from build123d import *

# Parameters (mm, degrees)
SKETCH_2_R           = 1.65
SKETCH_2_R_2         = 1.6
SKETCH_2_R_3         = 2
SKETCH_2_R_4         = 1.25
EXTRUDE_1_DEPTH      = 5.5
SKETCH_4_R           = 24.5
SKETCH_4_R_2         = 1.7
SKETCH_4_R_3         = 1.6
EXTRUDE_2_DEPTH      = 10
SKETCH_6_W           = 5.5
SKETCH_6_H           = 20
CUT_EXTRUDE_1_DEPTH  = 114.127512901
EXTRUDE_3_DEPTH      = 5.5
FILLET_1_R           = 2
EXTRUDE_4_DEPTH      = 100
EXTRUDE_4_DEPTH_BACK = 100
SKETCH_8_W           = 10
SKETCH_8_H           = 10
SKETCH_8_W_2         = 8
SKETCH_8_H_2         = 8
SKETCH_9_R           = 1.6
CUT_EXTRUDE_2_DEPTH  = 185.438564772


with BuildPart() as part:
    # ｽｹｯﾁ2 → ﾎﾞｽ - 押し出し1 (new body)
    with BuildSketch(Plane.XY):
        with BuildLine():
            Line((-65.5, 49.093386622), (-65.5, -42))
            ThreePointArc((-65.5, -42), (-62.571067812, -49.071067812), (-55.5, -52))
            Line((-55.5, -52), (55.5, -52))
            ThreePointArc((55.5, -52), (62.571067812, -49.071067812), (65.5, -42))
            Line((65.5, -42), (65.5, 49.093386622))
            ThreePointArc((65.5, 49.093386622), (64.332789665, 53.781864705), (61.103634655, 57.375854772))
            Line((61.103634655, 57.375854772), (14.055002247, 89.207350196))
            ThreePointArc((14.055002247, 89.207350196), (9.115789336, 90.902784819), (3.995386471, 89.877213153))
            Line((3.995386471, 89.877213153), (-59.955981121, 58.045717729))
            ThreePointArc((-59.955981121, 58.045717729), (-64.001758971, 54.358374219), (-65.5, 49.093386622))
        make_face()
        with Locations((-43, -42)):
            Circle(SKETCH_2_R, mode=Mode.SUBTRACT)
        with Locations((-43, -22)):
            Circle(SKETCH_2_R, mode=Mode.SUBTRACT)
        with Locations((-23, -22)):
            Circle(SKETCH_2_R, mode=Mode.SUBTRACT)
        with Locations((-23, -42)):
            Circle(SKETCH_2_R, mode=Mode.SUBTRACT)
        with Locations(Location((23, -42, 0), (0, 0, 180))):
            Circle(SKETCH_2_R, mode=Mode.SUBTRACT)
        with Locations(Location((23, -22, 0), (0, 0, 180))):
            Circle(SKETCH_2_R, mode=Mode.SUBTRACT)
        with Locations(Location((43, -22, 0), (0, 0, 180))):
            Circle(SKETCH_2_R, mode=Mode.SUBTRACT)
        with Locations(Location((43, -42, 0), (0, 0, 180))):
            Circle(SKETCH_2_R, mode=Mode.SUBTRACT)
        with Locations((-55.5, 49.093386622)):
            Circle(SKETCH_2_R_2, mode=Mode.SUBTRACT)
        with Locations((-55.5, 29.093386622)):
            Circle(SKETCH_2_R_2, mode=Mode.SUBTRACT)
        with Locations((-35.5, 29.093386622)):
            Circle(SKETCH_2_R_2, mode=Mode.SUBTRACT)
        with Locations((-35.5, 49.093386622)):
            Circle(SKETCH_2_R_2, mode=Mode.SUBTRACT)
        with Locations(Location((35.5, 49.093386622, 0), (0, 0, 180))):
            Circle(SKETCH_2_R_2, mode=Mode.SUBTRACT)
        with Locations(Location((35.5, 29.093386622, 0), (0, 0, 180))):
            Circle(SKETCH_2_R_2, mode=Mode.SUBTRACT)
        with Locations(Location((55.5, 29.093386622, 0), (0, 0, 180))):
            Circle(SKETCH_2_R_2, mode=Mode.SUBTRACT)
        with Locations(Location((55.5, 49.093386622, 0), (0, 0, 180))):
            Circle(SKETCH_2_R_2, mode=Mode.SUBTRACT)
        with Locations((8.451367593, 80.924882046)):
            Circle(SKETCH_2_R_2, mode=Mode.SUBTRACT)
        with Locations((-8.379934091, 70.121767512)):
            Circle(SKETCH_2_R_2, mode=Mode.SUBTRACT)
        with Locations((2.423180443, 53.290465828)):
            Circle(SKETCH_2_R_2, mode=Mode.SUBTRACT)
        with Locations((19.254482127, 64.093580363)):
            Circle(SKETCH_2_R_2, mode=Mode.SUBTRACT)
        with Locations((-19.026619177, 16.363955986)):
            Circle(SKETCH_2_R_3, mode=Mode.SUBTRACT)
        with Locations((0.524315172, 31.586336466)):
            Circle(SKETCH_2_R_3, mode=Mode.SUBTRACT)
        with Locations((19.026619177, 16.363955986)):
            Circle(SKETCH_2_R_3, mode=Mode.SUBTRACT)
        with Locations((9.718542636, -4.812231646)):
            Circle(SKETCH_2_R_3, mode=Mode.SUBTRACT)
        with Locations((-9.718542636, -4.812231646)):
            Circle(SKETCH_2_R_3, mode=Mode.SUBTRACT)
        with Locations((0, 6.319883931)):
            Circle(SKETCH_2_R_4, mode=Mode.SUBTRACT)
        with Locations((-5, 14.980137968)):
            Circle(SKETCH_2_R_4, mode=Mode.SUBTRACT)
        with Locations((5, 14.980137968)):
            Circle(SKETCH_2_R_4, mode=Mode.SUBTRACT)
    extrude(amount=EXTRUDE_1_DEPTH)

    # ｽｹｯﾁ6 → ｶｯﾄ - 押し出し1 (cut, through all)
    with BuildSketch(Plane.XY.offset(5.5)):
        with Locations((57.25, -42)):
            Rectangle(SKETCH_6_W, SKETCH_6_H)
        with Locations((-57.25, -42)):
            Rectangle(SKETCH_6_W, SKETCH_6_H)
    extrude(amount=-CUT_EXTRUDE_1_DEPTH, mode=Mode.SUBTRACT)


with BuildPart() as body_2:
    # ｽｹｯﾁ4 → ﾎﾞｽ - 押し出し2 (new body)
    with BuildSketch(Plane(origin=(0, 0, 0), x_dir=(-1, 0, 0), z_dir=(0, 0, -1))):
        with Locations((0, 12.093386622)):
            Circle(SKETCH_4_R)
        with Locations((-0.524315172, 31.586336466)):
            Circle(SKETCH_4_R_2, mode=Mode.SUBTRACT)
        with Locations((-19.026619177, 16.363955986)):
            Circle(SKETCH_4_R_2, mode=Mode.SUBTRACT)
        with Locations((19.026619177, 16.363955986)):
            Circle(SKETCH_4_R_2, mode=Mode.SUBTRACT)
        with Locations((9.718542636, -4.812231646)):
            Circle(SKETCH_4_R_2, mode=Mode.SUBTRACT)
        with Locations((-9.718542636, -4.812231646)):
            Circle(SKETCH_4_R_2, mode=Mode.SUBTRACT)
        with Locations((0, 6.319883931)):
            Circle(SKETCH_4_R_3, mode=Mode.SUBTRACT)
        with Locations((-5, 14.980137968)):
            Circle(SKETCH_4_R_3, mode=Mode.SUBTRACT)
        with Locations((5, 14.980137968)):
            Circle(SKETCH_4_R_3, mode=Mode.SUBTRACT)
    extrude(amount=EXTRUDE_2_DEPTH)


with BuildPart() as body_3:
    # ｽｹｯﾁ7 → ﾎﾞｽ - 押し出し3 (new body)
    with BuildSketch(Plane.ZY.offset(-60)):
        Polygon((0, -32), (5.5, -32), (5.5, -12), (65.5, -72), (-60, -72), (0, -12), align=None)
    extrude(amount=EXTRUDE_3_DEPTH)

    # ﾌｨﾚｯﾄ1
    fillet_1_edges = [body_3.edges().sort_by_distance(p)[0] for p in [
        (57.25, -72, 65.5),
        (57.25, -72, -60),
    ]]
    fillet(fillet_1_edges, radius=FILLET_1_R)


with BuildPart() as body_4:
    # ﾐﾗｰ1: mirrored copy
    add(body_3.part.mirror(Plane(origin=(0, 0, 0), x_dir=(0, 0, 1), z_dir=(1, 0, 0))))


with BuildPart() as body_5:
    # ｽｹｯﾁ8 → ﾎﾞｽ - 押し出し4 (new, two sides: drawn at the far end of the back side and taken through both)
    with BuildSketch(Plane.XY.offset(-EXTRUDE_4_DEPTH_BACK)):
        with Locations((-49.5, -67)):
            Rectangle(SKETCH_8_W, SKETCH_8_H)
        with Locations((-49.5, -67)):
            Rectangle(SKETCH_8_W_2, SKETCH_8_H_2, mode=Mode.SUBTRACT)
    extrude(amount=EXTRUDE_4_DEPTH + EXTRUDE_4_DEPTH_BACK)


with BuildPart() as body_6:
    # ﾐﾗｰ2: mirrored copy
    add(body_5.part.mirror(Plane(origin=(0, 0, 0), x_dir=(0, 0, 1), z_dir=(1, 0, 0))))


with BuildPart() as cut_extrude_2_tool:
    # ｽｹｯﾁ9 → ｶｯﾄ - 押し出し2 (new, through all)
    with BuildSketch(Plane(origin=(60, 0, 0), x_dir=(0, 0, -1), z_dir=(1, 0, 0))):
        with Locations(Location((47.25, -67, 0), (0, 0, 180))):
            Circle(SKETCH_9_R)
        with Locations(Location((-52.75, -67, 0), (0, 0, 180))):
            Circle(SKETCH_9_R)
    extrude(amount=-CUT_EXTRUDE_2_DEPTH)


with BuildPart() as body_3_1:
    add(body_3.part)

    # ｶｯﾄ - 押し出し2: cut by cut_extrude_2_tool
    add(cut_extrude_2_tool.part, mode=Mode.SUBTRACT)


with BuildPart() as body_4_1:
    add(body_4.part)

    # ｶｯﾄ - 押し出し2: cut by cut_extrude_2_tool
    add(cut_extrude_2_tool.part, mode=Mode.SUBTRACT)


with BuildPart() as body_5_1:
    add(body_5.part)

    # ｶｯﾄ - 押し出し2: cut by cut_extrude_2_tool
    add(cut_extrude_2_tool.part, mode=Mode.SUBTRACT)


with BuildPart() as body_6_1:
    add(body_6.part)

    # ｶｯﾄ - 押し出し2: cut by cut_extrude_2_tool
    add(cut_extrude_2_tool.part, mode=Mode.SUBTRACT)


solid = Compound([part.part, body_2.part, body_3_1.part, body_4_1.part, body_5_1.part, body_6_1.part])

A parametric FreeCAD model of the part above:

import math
import FreeCAD as App
import Part
import Sketcher
Q = App.Units.Quantity


def edges_at(feature, points):
    """Names of the edges that pass closest to the given points."""
    edges = feature.Shape.Edges
    near = lambda p: min(range(len(edges)), key=lambda i: edges[i].distToShape(Part.Vertex(*p))[0])
    return sorted({f"Edge{near(p) + 1}" for p in points})

doc = App.newDocument("Part")
params = doc.addObject("Spreadsheet::Sheet", "Params")
for row, (alias, value) in enumerate([
    ("sketch1_diameter", "4 mm"),
    ("sketch1_radius", "10 mm"),
    ("sketch1_diameter2", "3.3 mm"),
    ("sketch1_diameter3", "2.5 mm"),
    ("sketch1_diameter4", "3.2 mm"),
    ("pad1_length", "5.5 mm"),
    ("sketch2_height", "20 mm"),
    ("sketch2_width", "5.5 mm"),
    ("sketch3_diameter", "49 mm"),
    ("sketch3_diameter2", "3.4 mm"),
    ("sketch3_diameter3", "3.2 mm"),
    ("pad2_length", "10 mm"),
    ("sketch4_width", "20 mm"),
    ("sketch4_height", "5.5 mm"),
    ("sketch4_height2", "125.5 mm"),
    ("pad3_length", "5.5 mm"),
    ("fillet_radius", "2 mm"),
    ("sketch5_width", "10 mm"),
    ("sketch5_width2", "8 mm"),
    ("pad4_length", "100 mm"),
    ("pad4_length2", "100 mm"),
    ("sketch6_diameter", "3.2 mm"),
    ("pad5_length", "185.438565 mm"),
], start=1):
    params.set(f"A{row}", alias)
    params.set(f"B{row}", "=" + value)
    params.setAlias(f"B{row}", alias)

body = doc.addObject("PartDesign::Body", "Body")

# Sketch on XY plane
sketch1 = doc.addObject("Sketcher::SketchObject", "Sketch")
body.addObject(sketch1)
sketch1.AttachmentSupport = (doc.XY_Plane, [""])
sketch1.MapMode = "FlatFace"
sketch1.addGeometry([
    Part.LineSegment(App.Vector(-65.5, 49.1, 0), App.Vector(-65.5, -42, 0)),  # 0
    Part.ArcOfCircle(Part.Circle(App.Vector(-55.5, -42, 0), App.Vector(0, 0, 1), 10), math.radians(180), math.radians(270)),  # 1
    Part.LineSegment(App.Vector(-55.5, -52, 0), App.Vector(55.5, -52, 0)),  # 2
    Part.ArcOfCircle(Part.Circle(App.Vector(55.5, -42, 0), App.Vector(0, 0, 1), 10), math.radians(-90), math.radians(0)),  # 3
    Part.LineSegment(App.Vector(65.5, -42, 0), App.Vector(65.5, 49.1, 0)),  # 4
    Part.ArcOfCircle(Part.Circle(App.Vector(55.5, 49.1, 0), App.Vector(0, 0, 1), 10), math.radians(0), math.radians(56)),  # 5
    Part.LineSegment(App.Vector(61.1, 57.4, 0), App.Vector(14.1, 89.2, 0)),  # 6
    Part.ArcOfCircle(Part.Circle(App.Vector(8.5, 80.9, 0), App.Vector(0, 0, 1), 10), math.radians(56), math.radians(116)),  # 7
    Part.LineSegment(App.Vector(4, 89.9, 0), App.Vector(-60, 58, 0)),  # 8
    Part.ArcOfCircle(Part.Circle(App.Vector(-55.5, 49.1, 0), App.Vector(0, 0, 1), 10), math.radians(116), math.radians(180)),  # 9
    Part.Circle(App.Vector(-43, -42, 0), App.Vector(0, 0, 1), 1.6),  # 10
    Part.Circle(App.Vector(-43, -22, 0), App.Vector(0, 0, 1), 1.6),  # 11
    Part.Circle(App.Vector(-23, -42, 0), App.Vector(0, 0, 1), 1.6),  # 12
    Part.Circle(App.Vector(-23, -22, 0), App.Vector(0, 0, 1), 1.6),  # 13
    Part.Circle(App.Vector(-9.7, -4.8, 0), App.Vector(0, 0, 1), 2),  # 14
    Part.Circle(App.Vector(-19, 16.4, 0), App.Vector(0, 0, 1), 2),  # 15
    Part.Circle(App.Vector(-5, 15, 0), App.Vector(0, 0, 1), 1.2),  # 16
    Part.Circle(App.Vector(23, -42, 0), App.Vector(0, 0, 1), 1.6),  # 17
    Part.Circle(App.Vector(23, -22, 0), App.Vector(0, 0, 1), 1.6),  # 18
    Part.Circle(App.Vector(43, -42, 0), App.Vector(0, 0, 1), 1.6),  # 19
    Part.Circle(App.Vector(43, -22, 0), App.Vector(0, 0, 1), 1.6),  # 20
    Part.Circle(App.Vector(9.7, -4.8, 0), App.Vector(0, 0, 1), 2),  # 21
    Part.Circle(App.Vector(0, 6.3, 0), App.Vector(0, 0, 1), 1.2),  # 22
    Part.Circle(App.Vector(5, 15, 0), App.Vector(0, 0, 1), 1.2),  # 23
    Part.Circle(App.Vector(19, 16.4, 0), App.Vector(0, 0, 1), 2),  # 24
    Part.Circle(App.Vector(-55.5, 29.1, 0), App.Vector(0, 0, 1), 1.6),  # 25
    Part.Circle(App.Vector(-35.5, 29.1, 0), App.Vector(0, 0, 1), 1.6),  # 26
    Part.Circle(App.Vector(-55.5, 49.1, 0), App.Vector(0, 0, 1), 1.6),  # 27
    Part.Circle(App.Vector(-35.5, 49.1, 0), App.Vector(0, 0, 1), 1.6),  # 28
    Part.Circle(App.Vector(-8.4, 70.1, 0), App.Vector(0, 0, 1), 1.6),  # 29
    Part.Circle(App.Vector(0.5, 31.6, 0), App.Vector(0, 0, 1), 2),  # 30
    Part.Circle(App.Vector(35.5, 29.1, 0), App.Vector(0, 0, 1), 1.6),  # 31
    Part.Circle(App.Vector(55.5, 29.1, 0), App.Vector(0, 0, 1), 1.6),  # 32
    Part.Circle(App.Vector(35.5, 49.1, 0), App.Vector(0, 0, 1), 1.6),  # 33
    Part.Circle(App.Vector(55.5, 49.1, 0), App.Vector(0, 0, 1), 1.6),  # 34
    Part.Circle(App.Vector(2.4, 53.3, 0), App.Vector(0, 0, 1), 1.6),  # 35
    Part.Circle(App.Vector(19.3, 64.1, 0), App.Vector(0, 0, 1), 1.6),  # 36
    Part.Circle(App.Vector(8.5, 80.9, 0), App.Vector(0, 0, 1), 1.6),  # 37
], False)
sketch1.addConstraint([
    Sketcher.Constraint("Tangent", 0, 2, 1, 1),
    Sketcher.Constraint("Tangent", 1, 2, 2, 1),
    Sketcher.Constraint("Tangent", 2, 2, 3, 1),
    Sketcher.Constraint("Tangent", 3, 2, 4, 1),
    Sketcher.Constraint("Tangent", 4, 2, 5, 1),
    Sketcher.Constraint("Tangent", 5, 2, 6, 1),
    Sketcher.Constraint("Tangent", 6, 2, 7, 1),
    Sketcher.Constraint("Tangent", 7, 2, 8, 1),
    Sketcher.Constraint("Tangent", 8, 2, 9, 1),
    Sketcher.Constraint("Tangent", 9, 2, 0, 1),
    Sketcher.Constraint("Vertical", 0),
    Sketcher.Constraint("Horizontal", 2),
    Sketcher.Constraint("Vertical", 4),
    Sketcher.Constraint("Coincident", 27, 3, 9, 3),
    Sketcher.Constraint("Coincident", 34, 3, 5, 3),
    Sketcher.Constraint("Coincident", 37, 3, 7, 3),
    Sketcher.Constraint("Equal", 1, 3),
    Sketcher.Constraint("Equal", 3, 5),
    Sketcher.Constraint("Equal", 5, 7),
    Sketcher.Constraint("Equal", 7, 9),
    Sketcher.Constraint("Equal", 10, 11),
    Sketcher.Constraint("Equal", 11, 12),
    Sketcher.Constraint("Equal", 12, 13),
    Sketcher.Constraint("Equal", 14, 15),
    Sketcher.Constraint("Equal", 13, 17),
    Sketcher.Constraint("Equal", 17, 18),
    Sketcher.Constraint("Equal", 18, 19),
    Sketcher.Constraint("Equal", 19, 20),
    Sketcher.Constraint("Equal", 15, 21),
    Sketcher.Constraint("Equal", 16, 22),
    Sketcher.Constraint("Equal", 22, 23),
    Sketcher.Constraint("Equal", 21, 24),
    Sketcher.Constraint("Equal", 25, 26),
    Sketcher.Constraint("Equal", 26, 27),
    Sketcher.Constraint("Equal", 27, 28),
    Sketcher.Constraint("Equal", 28, 29),
    Sketcher.Constraint("Equal", 24, 30),
    Sketcher.Constraint("Equal", 29, 31),
    Sketcher.Constraint("Equal", 31, 32),
    Sketcher.Constraint("Equal", 32, 33),
    Sketcher.Constraint("Equal", 33, 34),
    Sketcher.Constraint("Equal", 34, 35),
    Sketcher.Constraint("Equal", 35, 36),
    Sketcher.Constraint("Equal", 36, 37),
    Sketcher.Constraint("Symmetric", 5, 3, 9, 3, -2),
    Sketcher.Constraint("Symmetric", 12, 3, 17, 3, -2),
    Sketcher.Constraint("Symmetric", 13, 3, 18, 3, -2),
    Sketcher.Constraint("Symmetric", 10, 3, 19, 3, -2),
    Sketcher.Constraint("Symmetric", 11, 3, 20, 3, -2),
    Sketcher.Constraint("Symmetric", 14, 3, 21, 3, -2),
    Sketcher.Constraint("Symmetric", 16, 3, 23, 3, -2),
    Sketcher.Constraint("Symmetric", 15, 3, 24, 3, -2),
    Sketcher.Constraint("Symmetric", 26, 3, 31, 3, -2),
    Sketcher.Constraint("Symmetric", 25, 3, 32, 3, -2),
    Sketcher.Constraint("Symmetric", 28, 3, 33, 3, -2),
    Sketcher.Constraint("PointOnObject", 22, 3, -2),
    Sketcher.Constraint("Horizontal", 3, 3, 10, 3),
    Sketcher.Constraint("Horizontal", 10, 3, 12, 3),
    Sketcher.Constraint("Horizontal", 11, 3, 13, 3),
    Sketcher.Constraint("Horizontal", 25, 3, 26, 3),
    Sketcher.Constraint("Horizontal", 27, 3, 28, 3),
    Sketcher.Constraint("Vertical", 10, 3, 11, 3),
    Sketcher.Constraint("Vertical", 12, 3, 13, 3),
    Sketcher.Constraint("Vertical", 9, 3, 25, 3),
    Sketcher.Constraint("Vertical", 26, 3, 28, 3),
    Sketcher.Constraint("Diameter", 14, Q("4 mm")),
    Sketcher.Constraint("Radius", 1, Q("10 mm")),
    Sketcher.Constraint("Diameter", 10, Q("3.3 mm")),
    Sketcher.Constraint("Diameter", 16, Q("2.5 mm")),
    Sketcher.Constraint("Diameter", 25, Q("3.2 mm")),
    Sketcher.Constraint("DistanceX", 2, 1, 2, 2, Q("111 mm")),
    Sketcher.Constraint("DistanceY", 1, 3, -1, 1, Q("42 mm")),
    Sketcher.Constraint("DistanceX", 10, 3, -1, 1, Q("43 mm")),
    Sketcher.Constraint("DistanceY", 11, 3, -1, 1, Q("22 mm")),
    Sketcher.Constraint("DistanceX", 12, 3, -1, 1, Q("23 mm")),
    Sketcher.Constraint("DistanceX", 16, 3, -1, 1, Q("5 mm")),
    Sketcher.Constraint("DistanceY", 25, 3, 9, 3, Q("20 mm")),
    Sketcher.Constraint("DistanceX", 25, 3, 26, 3, Q("20 mm")),
    Sketcher.Constraint("DistanceX", 29, 3, 7, 3, Q("16.831302 mm")),
    Sketcher.Constraint("DistanceY", 23, 3, 30, 3, Q("16.606198 mm")),
    Sketcher.Constraint("DistanceY", 35, 3, 29, 3, Q("16.831302 mm")),
    Sketcher.Constraint("DistanceY", 36, 3, 7, 3, Q("16.831302 mm")),
    Sketcher.Constraint("DistanceX", 35, 3, 36, 3, Q("16.831302 mm")),
    Sketcher.Constraint("DistanceY", 0, 2, 0, 1, Q("91.093387 mm")),
    Sketcher.Constraint("DistanceY", 14, 3, -1, 1, Q("4.812232 mm")),
    Sketcher.Constraint("DistanceX", 15, 3, -1, 1, Q("19.026619 mm")),
    Sketcher.Constraint("DistanceX", -1, 1, 35, 3, Q("2.42318 mm")),
    Sketcher.Constraint("DistanceY", -1, 1, 36, 3, Q("64.09358 mm")),
    Sketcher.Constraint("DistanceY", -1, 1, 6, 2, Q("89.20735 mm")),
    Sketcher.Constraint("DistanceY", 15, 3, 9, 3, Q("32.729431 mm")),
    Sketcher.Constraint("DistanceY", 16, 3, 15, 3, Q("1.383818 mm")),
    Sketcher.Constraint("DistanceX", 15, 3, 21, 3, Q("28.745162 mm")),
    Sketcher.Constraint("DistanceY", 28, 3, 29, 3, Q("21.028381 mm")),
    Sketcher.Constraint("DistanceY", -1, 1, 22, 3, Q("6.319884 mm")),
    Sketcher.Constraint("DistanceX", -1, 1, 30, 3, Q("0.524315 mm")),
])
sketch1.setExpression("Constraints[65]", "Params.sketch1_diameter")
sketch1.setExpression("Constraints[66]", "Params.sketch1_radius")
sketch1.setExpression("Constraints[67]", "Params.sketch1_diameter2")
sketch1.setExpression("Constraints[68]", "Params.sketch1_diameter3")
sketch1.setExpression("Constraints[69]", "Params.sketch1_diameter4")
pad1 = doc.addObject("PartDesign::Pad", "Pad")
body.addObject(pad1)
pad1.Profile = sketch1
pad1.setExpression("Length", "Params.pad1_length")

# Sketch on XY plane
sketch2 = doc.addObject("Sketcher::SketchObject", "Sketch001")
body.addObject(sketch2)
sketch2.AttachmentSupport = (doc.XY_Plane, [""])
sketch2.MapMode = "FlatFace"
sketch2.AttachmentOffset = App.Placement(App.Vector(0, 0, 5.5), App.Rotation())
sketch2.addGeometry([
    Part.LineSegment(App.Vector(54, -32, 0), App.Vector(54, -52, 0)),  # 0
    Part.LineSegment(App.Vector(54, -52, 0), App.Vector(60, -52, 0)),  # 1
    Part.LineSegment(App.Vector(60, -52, 0), App.Vector(60, -32, 0)),  # 2
    Part.LineSegment(App.Vector(60, -32, 0), App.Vector(54, -32, 0)),  # 3
    Part.LineSegment(App.Vector(-60, -32, 0), App.Vector(-60, -52, 0)),  # 4
    Part.LineSegment(App.Vector(-60, -52, 0), App.Vector(-54, -52, 0)),  # 5
    Part.LineSegment(App.Vector(-54, -52, 0), App.Vector(-54, -32, 0)),  # 6
    Part.LineSegment(App.Vector(-54, -32, 0), App.Vector(-60, -32, 0)),  # 7
], False)
sketch2.addConstraint([
    Sketcher.Constraint("Coincident", 0, 2, 1, 1),
    Sketcher.Constraint("Coincident", 1, 2, 2, 1),
    Sketcher.Constraint("Coincident", 2, 2, 3, 1),
    Sketcher.Constraint("Coincident", 3, 2, 0, 1),
    Sketcher.Constraint("Coincident", 4, 2, 5, 1),
    Sketcher.Constraint("Coincident", 5, 2, 6, 1),
    Sketcher.Constraint("Coincident", 6, 2, 7, 1),
    Sketcher.Constraint("Coincident", 7, 2, 4, 1),
    Sketcher.Constraint("Vertical", 0),
    Sketcher.Constraint("Horizontal", 1),
    Sketcher.Constraint("Vertical", 2),
    Sketcher.Constraint("Horizontal", 3),
    Sketcher.Constraint("Vertical", 4),
    Sketcher.Constraint("Horizontal", 5),
    Sketcher.Constraint("Vertical", 6),
    Sketcher.Constraint("Horizontal", 7),
    Sketcher.Constraint("Symmetric", 1, 2, 4, 2, -2),
    Sketcher.Constraint("Symmetric", 3, 2, 6, 2, -2),
    Sketcher.Constraint("DistanceY", 0, 2, 0, 1, Q("20 mm")),
    Sketcher.Constraint("DistanceX", 1, 1, 1, 2, Q("5.5 mm")),
    Sketcher.Constraint("DistanceY", 0, 2, -1, 1, Q("52 mm")),
    Sketcher.Constraint("DistanceX", -1, 1, 1, 2, Q("60 mm")),
])
sketch2.setExpression("Constraints[18]", "Params.sketch2_height")
sketch2.setExpression("Constraints[19]", "Params.sketch2_width")
pocket1 = doc.addObject("PartDesign::Pocket", "Pocket")
body.addObject(pocket1)
pocket1.Profile = sketch2
pocket1.Type = "ThroughAll"
body2 = doc.addObject("PartDesign::Body", "Body001")

# Sketch on XY plane
sketch3 = doc.addObject("Sketcher::SketchObject", "Sketch002")
body2.addObject(sketch3)
sketch3.AttachmentSupport = (doc.getObject("XY_Plane001"), [""])
sketch3.MapMode = "FlatFace"
sketch3.addGeometry([
    Part.Circle(App.Vector(0, 12.1, 0), App.Vector(0, 0, 1), 24.5),  # 0
    Part.Circle(App.Vector(9.7, -4.8, 0), App.Vector(0, 0, 1), 1.7),  # 1
    Part.Circle(App.Vector(-9.7, -4.8, 0), App.Vector(0, 0, 1), 1.7),  # 2
    Part.Circle(App.Vector(0, 6.3, 0), App.Vector(0, 0, 1), 1.6),  # 3
    Part.Circle(App.Vector(19, 16.4, 0), App.Vector(0, 0, 1), 1.7),  # 4
    Part.Circle(App.Vector(5, 15, 0), App.Vector(0, 0, 1), 1.6),  # 5
    Part.Circle(App.Vector(0.5, 31.6, 0), App.Vector(0, 0, 1), 1.7),  # 6
    Part.Circle(App.Vector(-5, 15, 0), App.Vector(0, 0, 1), 1.6),  # 7
    Part.Circle(App.Vector(-19, 16.4, 0), App.Vector(0, 0, 1), 1.7),  # 8
], False)
sketch3.addConstraint([
    Sketcher.Constraint("Equal", 1, 2),
    Sketcher.Constraint("Equal", 2, 4),
    Sketcher.Constraint("Equal", 3, 5),
    Sketcher.Constraint("Equal", 4, 6),
    Sketcher.Constraint("Equal", 5, 7),
    Sketcher.Constraint("Equal", 6, 8),
    Sketcher.Constraint("Symmetric", 1, 3, 2, 3, -2),
    Sketcher.Constraint("Symmetric", 5, 3, 7, 3, -2),
    Sketcher.Constraint("Symmetric", 4, 3, 8, 3, -2),
    Sketcher.Constraint("PointOnObject", 0, 3, -2),
    Sketcher.Constraint("PointOnObject", 3, 3, -2),
    Sketcher.Constraint("Diameter", 0, Q("49 mm")),
    Sketcher.Constraint("Diameter", 1, Q("3.4 mm")),
    Sketcher.Constraint("Diameter", 3, Q("3.2 mm")),
    Sketcher.Constraint("DistanceX", -1, 1, 5, 3, Q("5 mm")),
    Sketcher.Constraint("DistanceY", 5, 3, 6, 3, Q("16.606198 mm")),
    Sketcher.Constraint("DistanceY", 1, 3, -1, 1, Q("4.812232 mm")),
    Sketcher.Constraint("DistanceX", -1, 1, 4, 3, Q("19.026619 mm")),
    Sketcher.Constraint("DistanceY", 1, 3, 0, 3, Q("16.905618 mm")),
    Sketcher.Constraint("DistanceY", 0, 3, 4, 3, Q("4.270569 mm")),
    Sketcher.Constraint("DistanceX", 2, 3, 4, 3, Q("28.745162 mm")),
    Sketcher.Constraint("DistanceY", 0, 3, 5, 3, Q("2.886751 mm")),
    Sketcher.Constraint("DistanceY", -1, 1, 3, 3, Q("6.319884 mm")),
    Sketcher.Constraint("DistanceX", -1, 1, 6, 3, Q("0.524315 mm")),
])
sketch3.setExpression("Constraints[11]", "Params.sketch3_diameter")
sketch3.setExpression("Constraints[12]", "Params.sketch3_diameter2")
sketch3.setExpression("Constraints[13]", "Params.sketch3_diameter3")
pad2 = doc.addObject("PartDesign::Pad", "Pad001")
body2.addObject(pad2)
pad2.Profile = sketch3
pad2.setExpression("Length", "Params.pad2_length")
pad2.Reversed = True
body3 = doc.addObject("PartDesign::Body", "Body002")

# Sketch on YZ plane
sketch4 = doc.addObject("Sketcher::SketchObject", "Sketch003")
body3.addObject(sketch4)
sketch4.AttachmentSupport = (doc.getObject("YZ_Plane002"), [""])
sketch4.MapMode = "FlatFace"
sketch4.AttachmentOffset = App.Placement(App.Vector(0, 0, 60), App.Rotation())
sketch4.addGeometry([
    Part.LineSegment(App.Vector(-32, 6, 0), App.Vector(-32, 0, 0)),  # 0
    Part.LineSegment(App.Vector(-32, 0, 0), App.Vector(-12, 0, 0)),  # 1
    Part.LineSegment(App.Vector(-12, 0, 0), App.Vector(-72, -60, 0)),  # 2
    Part.LineSegment(App.Vector(-72, -60, 0), App.Vector(-72, 66, 0)),  # 3
    Part.LineSegment(App.Vector(-72, 66, 0), App.Vector(-12, 6, 0)),  # 4
    Part.LineSegment(App.Vector(-12, 6, 0), App.Vector(-32, 6, 0)),  # 5
], False)
sketch4.addConstraint([
    Sketcher.Constraint("Coincident", 0, 2, 1, 1),
    Sketcher.Constraint("Coincident", 1, 2, 2, 1),
    Sketcher.Constraint("Coincident", 2, 2, 3, 1),
    Sketcher.Constraint("Coincident", 3, 2, 4, 1),
    Sketcher.Constraint("Coincident", 4, 2, 5, 1),
    Sketcher.Constraint("Coincident", 5, 2, 0, 1),
    Sketcher.Constraint("Vertical", 0),
    Sketcher.Constraint("Horizontal", 1),
    Sketcher.Constraint("Vertical", 3),
    Sketcher.Constraint("Horizontal", 5),
    Sketcher.Constraint("PointOnObject", 0, 2, -1),
    Sketcher.Constraint("Perpendicular", 2, 4),
    Sketcher.Constraint("Vertical", 1, 2, 4, 2),
    Sketcher.Constraint("Equal", 2, 4),
    Sketcher.Constraint("DistanceX", 1, 1, 1, 2, Q("20 mm")),
    Sketcher.Constraint("DistanceY", 0, 2, 0, 1, Q("5.5 mm")),
    Sketcher.Constraint("DistanceY", 3, 1, 3, 2, Q("125.5 mm")),
    Sketcher.Constraint("DistanceX", 0, 2, -1, 1, Q("32 mm")),
])
sketch4.setExpression("Constraints[14]", "Params.sketch4_width")
sketch4.setExpression("Constraints[15]", "Params.sketch4_height")
sketch4.setExpression("Constraints[16]", "Params.sketch4_height2")
pad3 = doc.addObject("PartDesign::Pad", "Pad002")
body3.addObject(pad3)
pad3.Profile = sketch4
pad3.setExpression("Length", "Params.pad3_length")
pad3.Reversed = True
doc.recompute()

fillet = doc.addObject("PartDesign::Fillet", "Fillet")
body3.addObject(fillet)
fillet.Base = (pad3, edges_at(pad3, [(57.25, -72, 65.5), (57.25, -72, -60)]))
fillet.setExpression("Radius", "Params.fillet_radius")
body4 = doc.addObject("PartDesign::Body", "Body003")
doc.recompute()

mirroring = doc.addObject("Part::Mirroring", "Mirroring")
mirroring.Source = body3
mirroring.Base = App.Vector(0, 0, 0)
mirroring.Normal = App.Vector(1, 0, 0)
body4.BaseFeature = mirroring
doc.recompute()
body5 = doc.addObject("PartDesign::Body", "Body004")

# Sketch on XY plane
sketch5 = doc.addObject("Sketcher::SketchObject", "Sketch004")
body5.addObject(sketch5)
sketch5.AttachmentSupport = (doc.getObject("XY_Plane004"), [""])
sketch5.MapMode = "FlatFace"
sketch5.addGeometry([
    Part.LineSegment(App.Vector(-54, -62, 0), App.Vector(-54, -72, 0)),  # 0
    Part.LineSegment(App.Vector(-54, -72, 0), App.Vector(-44, -72, 0)),  # 1
    Part.LineSegment(App.Vector(-44, -72, 0), App.Vector(-44, -62, 0)),  # 2
    Part.LineSegment(App.Vector(-44, -62, 0), App.Vector(-54, -62, 0)),  # 3
    Part.LineSegment(App.Vector(-46, -71, 0), App.Vector(-54, -71, 0)),  # 4
    Part.LineSegment(App.Vector(-54, -71, 0), App.Vector(-54, -63, 0)),  # 5
    Part.LineSegment(App.Vector(-54, -63, 0), App.Vector(-46, -63, 0)),  # 6
    Part.LineSegment(App.Vector(-46, -63, 0), App.Vector(-46, -71, 0)),  # 7
], False)
sketch5.addConstraint([
    Sketcher.Constraint("Coincident", 0, 2, 1, 1),
    Sketcher.Constraint("Coincident", 1, 2, 2, 1),
    Sketcher.Constraint("Coincident", 2, 2, 3, 1),
    Sketcher.Constraint("Coincident", 3, 2, 0, 1),
    Sketcher.Constraint("Coincident", 4, 2, 5, 1),
    Sketcher.Constraint("Coincident", 5, 2, 6, 1),
    Sketcher.Constraint("Coincident", 6, 2, 7, 1),
    Sketcher.Constraint("Coincident", 7, 2, 4, 1),
    Sketcher.Constraint("Vertical", 0),
    Sketcher.Constraint("Horizontal", 1),
    Sketcher.Constraint("Vertical", 2),
    Sketcher.Constraint("Horizontal", 3),
    Sketcher.Constraint("Horizontal", 4),
    Sketcher.Constraint("Vertical", 5),
    Sketcher.Constraint("Horizontal", 6),
    Sketcher.Constraint("Vertical", 7),
    Sketcher.Constraint("Equal", 3, 0),
    Sketcher.Constraint("Equal", 6, 5),
    Sketcher.Constraint("DistanceX", 1, 1, 1, 2, Q("10 mm")),
    Sketcher.Constraint("DistanceX", 4, 2, 4, 1, Q("8 mm")),
    Sketcher.Constraint("DistanceY", 0, 2, -1, 1, Q("72 mm")),
    Sketcher.Constraint("DistanceY", 4, 2, -1, 1, Q("71 mm")),
    Sketcher.Constraint("DistanceX", 0, 2, 4, 2, Q("1 mm")),
    Sketcher.Constraint("DistanceX", 0, 2, -1, 1, Q("54.5 mm")),
])
sketch5.setExpression("Constraints[18]", "Params.sketch5_width")
sketch5.setExpression("Constraints[19]", "Params.sketch5_width2")
pad4 = doc.addObject("PartDesign::Pad", "Pad003")
body5.addObject(pad4)
pad4.Profile = sketch5
pad4.Type = "TwoLengths"
pad4.setExpression("Length", "Params.pad4_length")
pad4.setExpression("Length2", "Params.pad4_length2")
body6 = doc.addObject("PartDesign::Body", "Body005")
doc.recompute()

mirroring2 = doc.addObject("Part::Mirroring", "Mirroring001")
mirroring2.Source = body5
mirroring2.Base = App.Vector(0, 0, 0)
mirroring2.Normal = App.Vector(1, 0, 0)
body6.BaseFeature = mirroring2
doc.recompute()
body7 = doc.addObject("PartDesign::Body", "Body006")
body7.AllowCompound = True

# Sketch on YZ plane
sketch6 = doc.addObject("Sketcher::SketchObject", "Sketch005")
body7.addObject(sketch6)
sketch6.AttachmentSupport = (doc.getObject("YZ_Plane006"), [""])
sketch6.MapMode = "FlatFace"
sketch6.AttachmentOffset = App.Placement(App.Vector(0, 0, 60), App.Rotation())
sketch6.addGeometry([
    Part.Circle(App.Vector(-67, -47.2, 0), App.Vector(0, 0, 1), 1.6),
    Part.Circle(App.Vector(-67, 52.8, 0), App.Vector(0, 0, 1), 1.6),
], False)
sketch6.addConstraint([
    Sketcher.Constraint("Equal", 0, 1),
    Sketcher.Constraint("Vertical", 0, 3, 1, 3),
    Sketcher.Constraint("Diameter", 0, Q("3.2 mm")),
    Sketcher.Constraint("DistanceX", 0, 3, -1, 1, Q("67 mm")),
    Sketcher.Constraint("DistanceY", 0, 3, 1, 3, Q("100 mm")),
    Sketcher.Constraint("DistanceY", 0, 3, -1, 1, Q("47.25 mm")),
])
sketch6.setExpression("Constraints[2]", "Params.sketch6_diameter")
pad5 = doc.addObject("PartDesign::Pad", "Pad004")
body7.addObject(pad5)
pad5.Profile = sketch6
pad5.setExpression("Length", "Params.pad5_length")
pad5.Reversed = True
doc.recompute()

body8 = doc.addObject("PartDesign::Body", "Body007")
body8.BaseFeature = body7
boolean = doc.addObject("PartDesign::Boolean", "Boolean")
body3.addObject(boolean)
boolean.Type = "Cut"
boolean.addObjects([body8])
doc.recompute()

body9 = doc.addObject("PartDesign::Body", "Body008")
body9.BaseFeature = body7
boolean2 = doc.addObject("PartDesign::Boolean", "Boolean001")
body4.addObject(boolean2)
boolean2.Type = "Cut"
boolean2.addObjects([body9])
doc.recompute()

body10 = doc.addObject("PartDesign::Body", "Body009")
body10.BaseFeature = body7
boolean3 = doc.addObject("PartDesign::Boolean", "Boolean002")
body5.addObject(boolean3)
boolean3.Type = "Cut"
boolean3.addObjects([body10])
doc.recompute()

boolean4 = doc.addObject("PartDesign::Boolean", "Boolean003")
body6.addObject(boolean4)
boolean4.Type = "Cut"
boolean4.addObjects([body7])
mirroring.Visibility = False
mirroring2.Visibility = False

doc.recompute()
